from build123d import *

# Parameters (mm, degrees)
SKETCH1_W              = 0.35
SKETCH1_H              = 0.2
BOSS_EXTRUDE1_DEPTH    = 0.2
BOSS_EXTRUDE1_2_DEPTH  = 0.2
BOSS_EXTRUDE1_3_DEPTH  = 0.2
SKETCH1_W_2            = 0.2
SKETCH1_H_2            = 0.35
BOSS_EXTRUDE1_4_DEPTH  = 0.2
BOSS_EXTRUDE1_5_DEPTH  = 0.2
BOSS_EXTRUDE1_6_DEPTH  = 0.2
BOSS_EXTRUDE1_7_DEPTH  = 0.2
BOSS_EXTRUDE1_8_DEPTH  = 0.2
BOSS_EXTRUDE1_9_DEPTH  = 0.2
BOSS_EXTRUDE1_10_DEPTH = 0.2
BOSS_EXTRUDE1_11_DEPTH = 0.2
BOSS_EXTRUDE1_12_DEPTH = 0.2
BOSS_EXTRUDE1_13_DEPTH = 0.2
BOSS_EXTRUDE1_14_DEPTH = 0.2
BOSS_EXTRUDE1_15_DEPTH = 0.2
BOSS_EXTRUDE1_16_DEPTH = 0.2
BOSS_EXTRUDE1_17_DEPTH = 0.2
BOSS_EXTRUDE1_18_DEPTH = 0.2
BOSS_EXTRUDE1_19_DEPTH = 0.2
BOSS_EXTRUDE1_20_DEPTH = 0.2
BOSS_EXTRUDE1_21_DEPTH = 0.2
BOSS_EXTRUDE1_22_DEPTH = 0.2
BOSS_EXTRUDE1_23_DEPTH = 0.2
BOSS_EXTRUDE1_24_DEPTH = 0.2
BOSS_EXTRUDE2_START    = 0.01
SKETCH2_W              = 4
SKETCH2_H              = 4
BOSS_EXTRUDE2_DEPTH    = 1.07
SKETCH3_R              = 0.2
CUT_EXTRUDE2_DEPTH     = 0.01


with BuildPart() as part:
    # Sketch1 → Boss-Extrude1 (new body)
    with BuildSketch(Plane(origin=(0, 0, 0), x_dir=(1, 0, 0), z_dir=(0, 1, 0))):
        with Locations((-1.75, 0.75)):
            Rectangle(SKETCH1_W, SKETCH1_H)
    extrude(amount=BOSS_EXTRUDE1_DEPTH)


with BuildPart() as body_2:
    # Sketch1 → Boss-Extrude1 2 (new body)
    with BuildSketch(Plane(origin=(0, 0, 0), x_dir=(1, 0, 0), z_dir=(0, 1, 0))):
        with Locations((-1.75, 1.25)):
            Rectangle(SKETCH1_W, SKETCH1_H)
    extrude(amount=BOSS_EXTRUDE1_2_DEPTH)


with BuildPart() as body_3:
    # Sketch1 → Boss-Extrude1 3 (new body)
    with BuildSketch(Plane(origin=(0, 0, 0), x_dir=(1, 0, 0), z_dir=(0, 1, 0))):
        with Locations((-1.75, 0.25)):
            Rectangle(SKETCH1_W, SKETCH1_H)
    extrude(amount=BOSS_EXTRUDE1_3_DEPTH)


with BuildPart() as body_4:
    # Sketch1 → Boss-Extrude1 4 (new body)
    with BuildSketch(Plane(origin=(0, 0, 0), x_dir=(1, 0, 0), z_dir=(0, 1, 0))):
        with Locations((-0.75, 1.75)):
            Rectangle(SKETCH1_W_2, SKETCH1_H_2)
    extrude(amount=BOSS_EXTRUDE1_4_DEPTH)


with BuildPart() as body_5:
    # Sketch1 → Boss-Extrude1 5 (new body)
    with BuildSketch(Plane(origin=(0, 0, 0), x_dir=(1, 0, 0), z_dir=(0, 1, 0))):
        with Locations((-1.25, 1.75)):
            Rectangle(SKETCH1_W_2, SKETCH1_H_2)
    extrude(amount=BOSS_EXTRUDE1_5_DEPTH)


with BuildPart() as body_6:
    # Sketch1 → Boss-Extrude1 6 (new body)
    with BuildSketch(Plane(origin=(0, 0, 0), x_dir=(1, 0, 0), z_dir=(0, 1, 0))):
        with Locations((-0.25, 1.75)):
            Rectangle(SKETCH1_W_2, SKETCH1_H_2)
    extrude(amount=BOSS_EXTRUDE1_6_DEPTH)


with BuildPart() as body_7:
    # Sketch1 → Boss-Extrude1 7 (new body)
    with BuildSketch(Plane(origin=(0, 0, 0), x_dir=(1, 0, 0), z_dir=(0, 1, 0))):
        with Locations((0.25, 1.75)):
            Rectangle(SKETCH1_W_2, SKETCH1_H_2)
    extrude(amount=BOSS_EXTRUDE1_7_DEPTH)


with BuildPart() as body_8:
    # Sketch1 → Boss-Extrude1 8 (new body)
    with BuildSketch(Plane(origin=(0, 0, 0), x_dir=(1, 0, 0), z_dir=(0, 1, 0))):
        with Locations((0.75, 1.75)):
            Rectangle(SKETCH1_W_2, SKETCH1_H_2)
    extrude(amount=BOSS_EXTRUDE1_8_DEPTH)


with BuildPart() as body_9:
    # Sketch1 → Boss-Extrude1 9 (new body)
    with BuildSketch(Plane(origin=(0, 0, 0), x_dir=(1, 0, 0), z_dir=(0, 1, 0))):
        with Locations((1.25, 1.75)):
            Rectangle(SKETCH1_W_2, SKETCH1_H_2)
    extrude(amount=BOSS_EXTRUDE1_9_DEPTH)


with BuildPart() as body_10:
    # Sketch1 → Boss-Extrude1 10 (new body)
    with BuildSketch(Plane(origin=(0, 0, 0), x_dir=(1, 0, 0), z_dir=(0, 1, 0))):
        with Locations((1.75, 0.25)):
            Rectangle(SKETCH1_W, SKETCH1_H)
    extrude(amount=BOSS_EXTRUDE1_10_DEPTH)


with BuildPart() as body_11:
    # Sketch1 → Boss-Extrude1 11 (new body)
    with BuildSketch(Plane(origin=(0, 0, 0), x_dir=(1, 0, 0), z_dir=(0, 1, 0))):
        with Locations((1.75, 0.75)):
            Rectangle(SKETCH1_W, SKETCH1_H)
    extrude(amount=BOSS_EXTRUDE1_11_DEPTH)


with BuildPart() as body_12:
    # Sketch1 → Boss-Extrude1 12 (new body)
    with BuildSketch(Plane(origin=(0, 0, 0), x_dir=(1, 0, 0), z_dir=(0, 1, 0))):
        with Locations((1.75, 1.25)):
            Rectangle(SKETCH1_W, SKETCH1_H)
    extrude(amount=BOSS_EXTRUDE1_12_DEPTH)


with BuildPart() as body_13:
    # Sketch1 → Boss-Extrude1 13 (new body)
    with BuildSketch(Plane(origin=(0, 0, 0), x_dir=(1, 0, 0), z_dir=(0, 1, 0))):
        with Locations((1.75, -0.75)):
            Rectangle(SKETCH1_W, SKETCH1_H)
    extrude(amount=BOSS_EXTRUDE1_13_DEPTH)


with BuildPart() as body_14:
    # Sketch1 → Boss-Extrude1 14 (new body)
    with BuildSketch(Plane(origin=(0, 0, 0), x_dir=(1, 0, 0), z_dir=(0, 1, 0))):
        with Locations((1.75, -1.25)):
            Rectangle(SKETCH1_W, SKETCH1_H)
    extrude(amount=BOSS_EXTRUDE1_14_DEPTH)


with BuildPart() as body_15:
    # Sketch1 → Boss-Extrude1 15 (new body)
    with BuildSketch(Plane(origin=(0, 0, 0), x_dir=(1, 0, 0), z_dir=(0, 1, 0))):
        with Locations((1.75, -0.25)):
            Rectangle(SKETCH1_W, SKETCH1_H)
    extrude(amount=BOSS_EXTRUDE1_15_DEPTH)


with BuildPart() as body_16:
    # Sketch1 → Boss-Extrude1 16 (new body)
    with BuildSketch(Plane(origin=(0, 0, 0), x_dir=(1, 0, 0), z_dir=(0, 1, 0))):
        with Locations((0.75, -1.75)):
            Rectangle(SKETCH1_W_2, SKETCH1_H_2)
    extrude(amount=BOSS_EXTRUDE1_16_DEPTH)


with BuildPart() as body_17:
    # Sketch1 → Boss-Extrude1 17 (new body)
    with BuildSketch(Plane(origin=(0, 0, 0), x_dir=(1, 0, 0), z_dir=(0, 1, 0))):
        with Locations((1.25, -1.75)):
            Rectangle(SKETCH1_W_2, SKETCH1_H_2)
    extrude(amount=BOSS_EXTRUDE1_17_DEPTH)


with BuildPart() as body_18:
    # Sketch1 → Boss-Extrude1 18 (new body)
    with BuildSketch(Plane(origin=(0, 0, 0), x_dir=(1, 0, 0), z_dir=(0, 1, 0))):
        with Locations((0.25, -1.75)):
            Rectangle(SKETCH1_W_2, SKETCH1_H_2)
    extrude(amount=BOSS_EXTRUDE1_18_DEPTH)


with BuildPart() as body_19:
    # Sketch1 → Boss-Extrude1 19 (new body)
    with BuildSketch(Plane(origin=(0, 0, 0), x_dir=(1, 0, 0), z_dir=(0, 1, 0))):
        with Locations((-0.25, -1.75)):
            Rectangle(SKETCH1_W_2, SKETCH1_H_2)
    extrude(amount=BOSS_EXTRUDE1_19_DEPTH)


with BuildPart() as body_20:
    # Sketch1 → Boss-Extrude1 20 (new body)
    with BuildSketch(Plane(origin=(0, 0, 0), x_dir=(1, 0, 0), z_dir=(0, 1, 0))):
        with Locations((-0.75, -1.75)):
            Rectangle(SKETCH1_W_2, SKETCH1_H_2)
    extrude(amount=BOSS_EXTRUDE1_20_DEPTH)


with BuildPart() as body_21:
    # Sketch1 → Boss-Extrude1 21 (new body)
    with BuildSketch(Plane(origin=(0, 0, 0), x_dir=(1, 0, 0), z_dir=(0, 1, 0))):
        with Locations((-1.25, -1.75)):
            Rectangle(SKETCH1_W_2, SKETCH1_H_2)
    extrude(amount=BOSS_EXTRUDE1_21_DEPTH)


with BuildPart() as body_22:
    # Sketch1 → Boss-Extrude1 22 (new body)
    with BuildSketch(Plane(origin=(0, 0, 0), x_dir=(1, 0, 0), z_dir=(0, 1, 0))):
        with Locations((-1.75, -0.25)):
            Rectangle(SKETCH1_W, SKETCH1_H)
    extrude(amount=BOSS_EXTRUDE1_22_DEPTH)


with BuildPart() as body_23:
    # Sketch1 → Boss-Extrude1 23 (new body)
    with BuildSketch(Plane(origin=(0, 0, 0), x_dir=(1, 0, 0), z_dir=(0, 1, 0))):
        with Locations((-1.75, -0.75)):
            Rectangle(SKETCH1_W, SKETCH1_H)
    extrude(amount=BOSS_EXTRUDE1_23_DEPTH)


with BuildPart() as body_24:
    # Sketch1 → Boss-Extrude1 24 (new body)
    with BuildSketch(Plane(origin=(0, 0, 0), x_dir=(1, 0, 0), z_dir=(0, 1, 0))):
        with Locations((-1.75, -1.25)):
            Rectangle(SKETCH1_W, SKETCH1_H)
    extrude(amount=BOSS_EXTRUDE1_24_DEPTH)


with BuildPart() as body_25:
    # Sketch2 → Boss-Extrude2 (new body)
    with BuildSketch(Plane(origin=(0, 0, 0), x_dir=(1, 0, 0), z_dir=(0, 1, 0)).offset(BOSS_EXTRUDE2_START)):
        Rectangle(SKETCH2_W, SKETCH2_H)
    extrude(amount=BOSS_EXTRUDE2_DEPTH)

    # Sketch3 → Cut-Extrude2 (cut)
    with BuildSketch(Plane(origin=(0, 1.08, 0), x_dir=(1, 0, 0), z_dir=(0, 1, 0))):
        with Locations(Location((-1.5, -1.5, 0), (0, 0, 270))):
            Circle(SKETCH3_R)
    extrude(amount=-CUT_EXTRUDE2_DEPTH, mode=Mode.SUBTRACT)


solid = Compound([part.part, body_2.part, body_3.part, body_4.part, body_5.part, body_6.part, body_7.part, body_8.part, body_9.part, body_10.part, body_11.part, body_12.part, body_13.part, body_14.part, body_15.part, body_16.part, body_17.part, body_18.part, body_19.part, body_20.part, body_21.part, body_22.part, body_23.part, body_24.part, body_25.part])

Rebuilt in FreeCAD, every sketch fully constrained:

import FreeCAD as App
import Part
import Sketcher
from FreeCAD import Vector
Q = App.Units.Quantity


def add_polygon(sketch, points):
    """Adds a closed chain of lines whose ends are joined by coincident constraints."""
    first, n = sketch.GeometryCount, len(points)
    for a, b in zip(points, points[1:] + points[:1]):
        sketch.addGeometry(Part.LineSegment(App.Vector(*a, 0), App.Vector(*b, 0)), False)
    for i in range(n):
        sketch.addConstraint(Sketcher.Constraint("Coincident", first + i, 2, first + (i + 1) % n, 1))

doc = App.newDocument("Part")
params = doc.addObject("Spreadsheet::Sheet", "Params")
for row, (alias, value) in enumerate([
    ("sketch1_height", "0.2 mm"),
    ("sketch1_width", "0.35 mm"),
    ("pad1_length", "0.2 mm"),
    ("sketch2_height", "0.2 mm"),
    ("sketch2_width", "0.35 mm"),
    ("pad2_length", "0.2 mm"),
    ("sketch3_height", "0.2 mm"),
    ("sketch3_width", "0.35 mm"),
    ("pad3_length", "0.2 mm"),
    ("sketch4_width", "0.2 mm"),
    ("sketch4_height", "0.35 mm"),
    ("pad4_length", "0.2 mm"),
    ("sketch5_width", "0.2 mm"),
    ("sketch5_height", "0.35 mm"),
    ("pad5_length", "0.2 mm"),
    ("sketch6_width", "0.2 mm"),
    ("sketch6_height", "0.35 mm"),
    ("pad6_length", "0.2 mm"),
    ("sketch7_width", "0.2 mm"),
    ("sketch7_height", "0.35 mm"),
    ("pad7_length", "0.2 mm"),
    ("sketch8_width", "0.2 mm"),
    ("sketch8_height", "0.35 mm"),
    ("pad8_length", "0.2 mm"),
    ("sketch9_width", "0.2 mm"),
    ("sketch9_height", "0.35 mm"),
    ("pad9_length", "0.2 mm"),
    ("sketch10_height", "0.2 mm"),
    ("sketch10_width", "0.35 mm"),
    ("pad10_length", "0.2 mm"),
    ("sketch11_height", "0.2 mm"),
    ("sketch11_width", "0.35 mm"),
    ("pad11_length", "0.2 mm"),
    ("sketch12_height", "0.2 mm"),
    ("sketch12_width", "0.35 mm"),
    ("pad12_length", "0.2 mm"),
    ("sketch13_height", "0.2 mm"),
    ("sketch13_width", "0.35 mm"),
    ("pad13_length", "0.2 mm"),
    ("sketch14_height", "0.2 mm"),
    ("sketch14_width", "0.35 mm"),
    ("pad14_length", "0.2 mm"),
    ("sketch15_height", "0.2 mm"),
    ("sketch15_width", "0.35 mm"),
    ("pad15_length", "0.2 mm"),
    ("sketch16_width", "0.2 mm"),
    ("sketch16_height", "0.35 mm"),
    ("pad16_length", "0.2 mm"),
    ("sketch17_width", "0.2 mm"),
    ("sketch17_height", "0.35 mm"),
    ("pad17_length", "0.2 mm"),
    ("sketch18_width", "0.2 mm"),
    ("sketch18_height", "0.35 mm"),
    ("pad18_length", "0.2 mm"),
    ("sketch19_width", "0.2 mm"),
    ("sketch19_height", "0.35 mm"),
    ("pad19_length", "0.2 mm"),
    ("sketch20_width", "0.2 mm"),
    ("sketch20_height", "0.35 mm"),
    ("pad20_length", "0.2 mm"),
    ("sketch21_width", "0.2 mm"),
    ("sketch21_height", "0.35 mm"),
    ("pad21_length", "0.2 mm"),
    ("sketch22_height", "0.2 mm"),
    ("sketch22_width", "0.35 mm"),
    ("pad22_length", "0.2 mm"),
    ("sketch23_height", "0.2 mm"),
    ("sketch23_width", "0.35 mm"),
    ("pad23_length", "0.2 mm"),
    ("sketch24_height", "0.2 mm"),
    ("sketch24_width", "0.35 mm"),
    ("pad24_length", "0.2 mm"),
    ("sketch25_width", "4 mm"),
    ("pad25_length", "1.07 mm"),
    ("sketch26_diameter", "0.4 mm"),
    ("pocket1_length", "0.01 mm"),
], start=1):
    params.set(f"A{row}", alias)
    params.set(f"B{row}", "=" + value)
    params.setAlias(f"B{row}", alias)

body = doc.addObject("PartDesign::Body", "Body")

sketch1 = body.newObject("Sketcher::SketchObject", "Sketch")
sketch1.AttachmentSupport = (doc.getObject("XZ_Plane"), [""])
sketch1.MapMode = "FlatFace"
add_polygon(sketch1, [(-1.925, -0.85), (-1.925, -0.65), (-1.575, -0.65), (-1.575, -0.85)])
sketch1.addConstraint(Sketcher.Constraint("Vertical", 0))
sketch1.addConstraint(Sketcher.Constraint("Horizontal", 1))
sketch1.addConstraint(Sketcher.Constraint("Vertical", 2))
sketch1.addConstraint(Sketcher.Constraint("Horizontal", 3))
sketch1.addConstraint(Sketcher.Constraint("DistanceY", 0, 1, 0, 2, Q("0.2 mm")))
sketch1.addConstraint(Sketcher.Constraint("DistanceX", 1, 1, 1, 2, Q("0.35 mm")))
sketch1.addConstraint(Sketcher.Constraint("DistanceY", 0, 2, -1, 1, Q("0.65 mm")))
sketch1.addConstraint(Sketcher.Constraint("DistanceX", 0, 2, -1, 1, Q("1.925 mm")))
sketch1.setExpression("Constraints[8]", "Params.sketch1_height")
sketch1.setExpression("Constraints[9]", "Params.sketch1_width")
pad1 = body.newObject("PartDesign::Pad", "Pad")
pad1.Profile = sketch1
pad1.setExpression("Length", "Params.pad1_length")
pad1.Reversed = True
body2 = doc.addObject("PartDesign::Body", "Body001")

sketch2 = body2.newObject("Sketcher::SketchObject", "Sketch001")
sketch2.AttachmentSupport = (doc.getObject("XZ_Plane001"), [""])
sketch2.MapMode = "FlatFace"
add_polygon(sketch2, [(-1.925, -1.35), (-1.925, -1.15), (-1.575, -1.15), (-1.575, -1.35)])
sketch2.addConstraint(Sketcher.Constraint("Vertical", 0))
sketch2.addConstraint(Sketcher.Constraint("Horizontal", 1))
sketch2.addConstraint(Sketcher.Constraint("Vertical", 2))
sketch2.addConstraint(Sketcher.Constraint("Horizontal", 3))
sketch2.addConstraint(Sketcher.Constraint("DistanceY", 0, 1, 0, 2, Q("0.2 mm")))
sketch2.addConstraint(Sketcher.Constraint("DistanceX", 1, 1, 1, 2, Q("0.35 mm")))
sketch2.addConstraint(Sketcher.Constraint("DistanceY", 0, 2, -1, 1, Q("1.15 mm")))
sketch2.addConstraint(Sketcher.Constraint("DistanceX", 0, 2, -1, 1, Q("1.925 mm")))
sketch2.setExpression("Constraints[8]", "Params.sketch2_height")
sketch2.setExpression("Constraints[9]", "Params.sketch2_width")
pad2 = body2.newObject("PartDesign::Pad", "Pad001")
pad2.Profile = sketch2
pad2.setExpression("Length", "Params.pad2_length")
pad2.Reversed = True
body3 = doc.addObject("PartDesign::Body", "Body002")

sketch3 = body3.newObject("Sketcher::SketchObject", "Sketch002")
sketch3.AttachmentSupport = (doc.getObject("XZ_Plane002"), [""])
sketch3.MapMode = "FlatFace"
add_polygon(sketch3, [(-1.925, -0.35), (-1.925, -0.15), (-1.575, -0.15), (-1.575, -0.35)])
sketch3.addConstraint(Sketcher.Constraint("Vertical", 0))
sketch3.addConstraint(Sketcher.Constraint("Horizontal", 1))
sketch3.addConstraint(Sketcher.Constraint("Vertical", 2))
sketch3.addConstraint(Sketcher.Constraint("Horizontal", 3))
sketch3.addConstraint(Sketcher.Constraint("DistanceY", 0, 1, 0, 2, Q("0.2 mm")))
sketch3.addConstraint(Sketcher.Constraint("DistanceX", 1, 1, 1, 2, Q("0.35 mm")))
sketch3.addConstraint(Sketcher.Constraint("DistanceY", 0, 2, -1, 1, Q("0.15 mm")))
sketch3.addConstraint(Sketcher.Constraint("DistanceX", 0, 2, -1, 1, Q("1.925 mm")))
sketch3.setExpression("Constraints[8]", "Params.sketch3_height")
sketch3.setExpression("Constraints[9]", "Params.sketch3_width")
pad3 = body3.newObject("PartDesign::Pad", "Pad002")
pad3.Profile = sketch3
pad3.setExpression("Length", "Params.pad3_length")
pad3.Reversed = True
body4 = doc.addObject("PartDesign::Body", "Body003")

sketch4 = body4.newObject("Sketcher::SketchObject", "Sketch003")
sketch4.AttachmentSupport = (doc.getObject("XZ_Plane003"), [""])
sketch4.MapMode = "FlatFace"
add_polygon(sketch4, [(-0.85, -1.925), (-0.85, -1.575), (-0.65, -1.575), (-0.65, -1.925)])
sketch4.addConstraint(Sketcher.Constraint("Vertical", 0))
sketch4.addConstraint(Sketcher.Constraint("Horizontal", 1))
sketch4.addConstraint(Sketcher.Constraint("Vertical", 2))
sketch4.addConstraint(Sketcher.Constraint("Horizontal", 3))
sketch4.addConstraint(Sketcher.Constraint("DistanceX", 1, 1, 1, 2, Q("0.2 mm")))
sketch4.addConstraint(Sketcher.Constraint("DistanceY", 0, 1, 0, 2, Q("0.35 mm")))
sketch4.addConstraint(Sketcher.Constraint("DistanceX", 0, 2, -1, 1, Q("0.85 mm")))
sketch4.addConstraint(Sketcher.Constraint("DistanceY", 0, 2, -1, 1, Q("1.575 mm")))
sketch4.setExpression("Constraints[8]", "Params.sketch4_width")
sketch4.setExpression("Constraints[9]", "Params.sketch4_height")
pad4 = body4.newObject("PartDesign::Pad", "Pad003")
pad4.Profile = sketch4
pad4.setExpression("Length", "Params.pad4_length")
pad4.Reversed = True
body5 = doc.addObject("PartDesign::Body", "Body004")

sketch5 = body5.newObject("Sketcher::SketchObject", "Sketch004")
sketch5.AttachmentSupport = (doc.getObject("XZ_Plane004"), [""])
sketch5.MapMode = "FlatFace"
add_polygon(sketch5, [(-1.35, -1.925), (-1.35, -1.575), (-1.15, -1.575), (-1.15, -1.925)])
sketch5.addConstraint(Sketcher.Constraint("Vertical", 0))
sketch5.addConstraint(Sketcher.Constraint("Horizontal", 1))
sketch5.addConstraint(Sketcher.Constraint("Vertical", 2))
sketch5.addConstraint(Sketcher.Constraint("Horizontal", 3))
sketch5.addConstraint(Sketcher.Constraint("DistanceX", 1, 1, 1, 2, Q("0.2 mm")))
sketch5.addConstraint(Sketcher.Constraint("DistanceY", 0, 1, 0, 2, Q("0.35 mm")))
sketch5.addConstraint(Sketcher.Constraint("DistanceX", 0, 2, -1, 1, Q("1.35 mm")))
sketch5.addConstraint(Sketcher.Constraint("DistanceY", 0, 2, -1, 1, Q("1.575 mm")))
sketch5.setExpression("Constraints[8]", "Params.sketch5_width")
sketch5.setExpression("Constraints[9]", "Params.sketch5_height")
pad5 = body5.newObject("PartDesign::Pad", "Pad004")
pad5.Profile = sketch5
pad5.setExpression("Length", "Params.pad5_length")
pad5.Reversed = True
body6 = doc.addObject("PartDesign::Body", "Body005")

sketch6 = body6.newObject("Sketcher::SketchObject", "Sketch005")
sketch6.AttachmentSupport = (doc.getObject("XZ_Plane005"), [""])
sketch6.MapMode = "FlatFace"
add_polygon(sketch6, [(-0.35, -1.925), (-0.35, -1.575), (-0.15, -1.575), (-0.15, -1.925)])
sketch6.addConstraint(Sketcher.Constraint("Vertical", 0))
sketch6.addConstraint(Sketcher.Constraint("Horizontal", 1))
sketch6.addConstraint(Sketcher.Constraint("Vertical", 2))
sketch6.addConstraint(Sketcher.Constraint("Horizontal", 3))
sketch6.addConstraint(Sketcher.Constraint("DistanceX", 1, 1, 1, 2, Q("0.2 mm")))
sketch6.addConstraint(Sketcher.Constraint("DistanceY", 0, 1, 0, 2, Q("0.35 mm")))
sketch6.addConstraint(Sketcher.Constraint("DistanceX", 0, 2, -1, 1, Q("0.35 mm")))
sketch6.addConstraint(Sketcher.Constraint("DistanceY", 0, 2, -1, 1, Q("1.575 mm")))
sketch6.setExpression("Constraints[8]", "Params.sketch6_width")
sketch6.setExpression("Constraints[9]", "Params.sketch6_height")
pad6 = body6.newObject("PartDesign::Pad", "Pad005")
pad6.Profile = sketch6
pad6.setExpression("Length", "Params.pad6_length")
pad6.Reversed = True
body7 = doc.addObject("PartDesign::Body", "Body006")

sketch7 = body7.newObject("Sketcher::SketchObject", "Sketch006")
sketch7.AttachmentSupport = (doc.getObject("XZ_Plane006"), [""])
sketch7.MapMode = "FlatFace"
add_polygon(sketch7, [(0.15, -1.925), (0.15, -1.575), (0.35, -1.575), (0.35, -1.925)])
sketch7.addConstraint(Sketcher.Constraint("Vertical", 0))
sketch7.addConstraint(Sketcher.Constraint("Horizontal", 1))
sketch7.addConstraint(Sketcher.Constraint("Vertical", 2))
sketch7.addConstraint(Sketcher.Constraint("Horizontal", 3))
sketch7.addConstraint(Sketcher.Constraint("DistanceX", 1, 1, 1, 2, Q("0.2 mm")))
sketch7.addConstraint(Sketcher.Constraint("DistanceY", 0, 1, 0, 2, Q("0.35 mm")))
sketch7.addConstraint(Sketcher.Constraint("DistanceX", -1, 1, 0, 2, Q("0.15 mm")))
sketch7.addConstraint(Sketcher.Constraint("DistanceY", 0, 2, -1, 1, Q("1.575 mm")))
sketch7.setExpression("Constraints[8]", "Params.sketch7_width")
sketch7.setExpression("Constraints[9]", "Params.sketch7_height")
pad7 = body7.newObject("PartDesign::Pad", "Pad006")
pad7.Profile = sketch7
pad7.setExpression("Length", "Params.pad7_length")
pad7.Reversed = True
body8 = doc.addObject("PartDesign::Body", "Body007")

sketch8 = body8.newObject("Sketcher::SketchObject", "Sketch007")
sketch8.AttachmentSupport = (doc.getObject("XZ_Plane007"), [""])
sketch8.MapMode = "FlatFace"
add_polygon(sketch8, [(0.65, -1.925), (0.65, -1.575), (0.85, -1.575), (0.85, -1.925)])
sketch8.addConstraint(Sketcher.Constraint("Vertical", 0))
sketch8.addConstraint(Sketcher.Constraint("Horizontal", 1))
sketch8.addConstraint(Sketcher.Constraint("Vertical", 2))
sketch8.addConstraint(Sketcher.Constraint("Horizontal", 3))
sketch8.addConstraint(Sketcher.Constraint("DistanceX", 1, 1, 1, 2, Q("0.2 mm")))
sketch8.addConstraint(Sketcher.Constraint("DistanceY", 0, 1, 0, 2, Q("0.35 mm")))
sketch8.addConstraint(Sketcher.Constraint("DistanceX", -1, 1, 0, 2, Q("0.65 mm")))
sketch8.addConstraint(Sketcher.Constraint("DistanceY", 0, 2, -1, 1, Q("1.575 mm")))
sketch8.setExpression("Constraints[8]", "Params.sketch8_width")
sketch8.setExpression("Constraints[9]", "Params.sketch8_height")
pad8 = body8.newObject("PartDesign::Pad", "Pad007")
pad8.Profile = sketch8
pad8.setExpression("Length", "Params.pad8_length")
pad8.Reversed = True
body9 = doc.addObject("PartDesign::Body", "Body008")

sketch9 = body9.newObject("Sketcher::SketchObject", "Sketch008")
sketch9.AttachmentSupport = (doc.getObject("XZ_Plane008"), [""])
sketch9.MapMode = "FlatFace"
add_polygon(sketch9, [(1.15, -1.925), (1.15, -1.575), (1.35, -1.575), (1.35, -1.925)])
sketch9.addConstraint(Sketcher.Constraint("Vertical", 0))
sketch9.addConstraint(Sketcher.Constraint("Horizontal", 1))
sketch9.addConstraint(Sketcher.Constraint("Vertical", 2))
sketch9.addConstraint(Sketcher.Constraint("Horizontal", 3))
sketch9.addConstraint(Sketcher.Constraint("DistanceX", 1, 1, 1, 2, Q("0.2 mm")))
sketch9.addConstraint(Sketcher.Constraint("DistanceY", 0, 1, 0, 2, Q("0.35 mm")))
sketch9.addConstraint(Sketcher.Constraint("DistanceX", -1, 1, 0, 2, Q("1.15 mm")))
sketch9.addConstraint(Sketcher.Constraint("DistanceY", 0, 2, -1, 1, Q("1.575 mm")))
sketch9.setExpression("Constraints[8]", "Params.sketch9_width")
sketch9.setExpression("Constraints[9]", "Params.sketch9_height")
pad9 = body9.newObject("PartDesign::Pad", "Pad008")
pad9.Profile = sketch9
pad9.setExpression("Length", "Params.pad9_length")
pad9.Reversed = True
body10 = doc.addObject("PartDesign::Body", "Body009")

sketch10 = body10.newObject("Sketcher::SketchObject", "Sketch009")
sketch10.AttachmentSupport = (doc.getObject("XZ_Plane009"), [""])
sketch10.MapMode = "FlatFace"
add_polygon(sketch10, [(1.575, -0.35), (1.575, -0.15), (1.925, -0.15), (1.925, -0.35)])
sketch10.addConstraint(Sketcher.Constraint("Vertical", 0))
sketch10.addConstraint(Sketcher.Constraint("Horizontal", 1))
sketch10.addConstraint(Sketcher.Constraint("Vertical", 2))
sketch10.addConstraint(Sketcher.Constraint("Horizontal", 3))
sketch10.addConstraint(Sketcher.Constraint("DistanceY", 0, 1, 0, 2, Q("0.2 mm")))
sketch10.addConstraint(Sketcher.Constraint("DistanceX", 1, 1, 1, 2, Q("0.35 mm")))
sketch10.addConstraint(Sketcher.Constraint("DistanceY", 0, 2, -1, 1, Q("0.15 mm")))
sketch10.addConstraint(Sketcher.Constraint("DistanceX", -1, 1, 0, 2, Q("1.575 mm")))
sketch10.setExpression("Constraints[8]", "Params.sketch10_height")
sketch10.setExpression("Constraints[9]", "Params.sketch10_width")
pad10 = body10.newObject("PartDesign::Pad", "Pad009")
pad10.Profile = sketch10
pad10.setExpression("Length", "Params.pad10_length")
pad10.Reversed = True
body11 = doc.addObject("PartDesign::Body", "Body010")

sketch11 = body11.newObject("Sketcher::SketchObject", "Sketch010")
sketch11.AttachmentSupport = (doc.getObject("XZ_Plane010"), [""])
sketch11.MapMode = "FlatFace"
add_polygon(sketch11, [(1.575, -0.85), (1.575, -0.65), (1.925, -0.65), (1.925, -0.85)])
sketch11.addConstraint(Sketcher.Constraint("Vertical", 0))
sketch11.addConstraint(Sketcher.Constraint("Horizontal", 1))
sketch11.addConstraint(Sketcher.Constraint("Vertical", 2))
sketch11.addConstraint(Sketcher.Constraint("Horizontal", 3))
sketch11.addConstraint(Sketcher.Constraint("DistanceY", 0, 1, 0, 2, Q("0.2 mm")))
sketch11.addConstraint(Sketcher.Constraint("DistanceX", 1, 1, 1, 2, Q("0.35 mm")))
sketch11.addConstraint(Sketcher.Constraint("DistanceY", 0, 2, -1, 1, Q("0.65 mm")))
sketch11.addConstraint(Sketcher.Constraint("DistanceX", -1, 1, 0, 2, Q("1.575 mm")))
sketch11.setExpression("Constraints[8]", "Params.sketch11_height")
sketch11.setExpression("Constraints[9]", "Params.sketch11_width")
pad11 = body11.newObject("PartDesign::Pad", "Pad010")
pad11.Profile = sketch11
pad11.setExpression("Length", "Params.pad11_length")
pad11.Reversed = True
body12 = doc.addObject("PartDesign::Body", "Body011")

sketch12 = body12.newObject("Sketcher::SketchObject", "Sketch011")
sketch12.AttachmentSupport = (doc.getObject("XZ_Plane011"), [""])
sketch12.MapMode = "FlatFace"
add_polygon(sketch12, [(1.575, -1.35), (1.575, -1.15), (1.925, -1.15), (1.925, -1.35)])
sketch12.addConstraint(Sketcher.Constraint("Vertical", 0))
sketch12.addConstraint(Sketcher.Constraint("Horizontal", 1))
sketch12.addConstraint(Sketcher.Constraint("Vertical", 2))
sketch12.addConstraint(Sketcher.Constraint("Horizontal", 3))
sketch12.addConstraint(Sketcher.Constraint("DistanceY", 0, 1, 0, 2, Q("0.2 mm")))
sketch12.addConstraint(Sketcher.Constraint("DistanceX", 1, 1, 1, 2, Q("0.35 mm")))
sketch12.addConstraint(Sketcher.Constraint("DistanceY", 0, 2, -1, 1, Q("1.15 mm")))
sketch12.addConstraint(Sketcher.Constraint("DistanceX", -1, 1, 0, 2, Q("1.575 mm")))
sketch12.setExpression("Constraints[8]", "Params.sketch12_height")
sketch12.setExpression("Constraints[9]", "Params.sketch12_width")
pad12 = body12.newObject("PartDesign::Pad", "Pad011")
pad12.Profile = sketch12
pad12.setExpression("Length", "Params.pad12_length")
pad12.Reversed = True
body13 = doc.addObject("PartDesign::Body", "Body012")

sketch13 = body13.newObject("Sketcher::SketchObject", "Sketch012")
sketch13.AttachmentSupport = (doc.getObject("XZ_Plane012"), [""])
sketch13.MapMode = "FlatFace"
add_polygon(sketch13, [(1.575, 0.65), (1.575, 0.85), (1.925, 0.85), (1.925, 0.65)])
sketch13.addConstraint(Sketcher.Constraint("Vertical", 0))
sketch13.addConstraint(Sketcher.Constraint("Horizontal", 1))
sketch13.addConstraint(Sketcher.Constraint("Vertical", 2))
sketch13.addConstraint(Sketcher.Constraint("Horizontal", 3))
sketch13.addConstraint(Sketcher.Constraint("DistanceY", 0, 1, 0, 2, Q("0.2 mm")))
sketch13.addConstraint(Sketcher.Constraint("DistanceX", 1, 1, 1, 2, Q("0.35 mm")))
sketch13.addConstraint(Sketcher.Constraint("DistanceY", -1, 1, 0, 2, Q("0.85 mm")))
sketch13.addConstraint(Sketcher.Constraint("DistanceX", -1, 1, 0, 2, Q("1.575 mm")))
sketch13.setExpression("Constraints[8]", "Params.sketch13_height")
sketch13.setExpression("Constraints[9]", "Params.sketch13_width")
pad13 = body13.newObject("PartDesign::Pad", "Pad012")
pad13.Profile = sketch13
pad13.setExpression("Length", "Params.pad13_length")
pad13.Reversed = True
body14 = doc.addObject("PartDesign::Body", "Body013")

sketch14 = body14.newObject("Sketcher::SketchObject", "Sketch013")
sketch14.AttachmentSupport = (doc.getObject("XZ_Plane013"), [""])
sketch14.MapMode = "FlatFace"
add_polygon(sketch14, [(1.575, 1.15), (1.575, 1.35), (1.925, 1.35), (1.925, 1.15)])
sketch14.addConstraint(Sketcher.Constraint("Vertical", 0))
sketch14.addConstraint(Sketcher.Constraint("Horizontal", 1))
sketch14.addConstraint(Sketcher.Constraint("Vertical", 2))
sketch14.addConstraint(Sketcher.Constraint("Horizontal", 3))
sketch14.addConstraint(Sketcher.Constraint("DistanceY", 0, 1, 0, 2, Q("0.2 mm")))
sketch14.addConstraint(Sketcher.Constraint("DistanceX", 1, 1, 1, 2, Q("0.35 mm")))
sketch14.addConstraint(Sketcher.Constraint("DistanceY", -1, 1, 0, 2, Q("1.35 mm")))
sketch14.addConstraint(Sketcher.Constraint("DistanceX", -1, 1, 0, 2, Q("1.575 mm")))
sketch14.setExpression("Constraints[8]", "Params.sketch14_height")
sketch14.setExpression("Constraints[9]", "Params.sketch14_width")
pad14 = body14.newObject("PartDesign::Pad", "Pad013")
pad14.Profile = sketch14
pad14.setExpression("Length", "Params.pad14_length")
pad14.Reversed = True
body15 = doc.addObject("PartDesign::Body", "Body014")

sketch15 = body15.newObject("Sketcher::SketchObject", "Sketch014")
sketch15.AttachmentSupport = (doc.getObject("XZ_Plane014"), [""])
sketch15.MapMode = "FlatFace"
add_polygon(sketch15, [(1.575, 0.15), (1.575, 0.35), (1.925, 0.35), (1.925, 0.15)])
sketch15.addConstraint(Sketcher.Constraint("Vertical", 0))
sketch15.addConstraint(Sketcher.Constraint("Horizontal", 1))
sketch15.addConstraint(Sketcher.Constraint("Vertical", 2))
sketch15.addConstraint(Sketcher.Constraint("Horizontal", 3))
sketch15.addConstraint(Sketcher.Constraint("DistanceY", 0, 1, 0, 2, Q("0.2 mm")))
sketch15.addConstraint(Sketcher.Constraint("DistanceX", 1, 1, 1, 2, Q("0.35 mm")))
sketch15.addConstraint(Sketcher.Constraint("DistanceY", -1, 1, 0, 2, Q("0.35 mm")))
sketch15.addConstraint(Sketcher.Constraint("DistanceX", -1, 1, 0, 2, Q("1.575 mm")))
sketch15.setExpression("Constraints[8]", "Params.sketch15_height")
sketch15.setExpression("Constraints[9]", "Params.sketch15_width")
pad15 = body15.newObject("PartDesign::Pad", "Pad014")
pad15.Profile = sketch15
pad15.setExpression("Length", "Params.pad15_length")
pad15.Reversed = True
body16 = doc.addObject("PartDesign::Body", "Body015")

sketch16 = body16.newObject("Sketcher::SketchObject", "Sketch015")
sketch16.AttachmentSupport = (doc.getObject("XZ_Plane015"), [""])
sketch16.MapMode = "FlatFace"
add_polygon(sketch16, [(0.65, 1.575), (0.65, 1.925), (0.85, 1.925), (0.85, 1.575)])
sketch16.addConstraint(Sketcher.Constraint("Vertical", 0))
sketch16.addConstraint(Sketcher.Constraint("Horizontal", 1))
sketch16.addConstraint(Sketcher.Constraint("Vertical", 2))
sketch16.addConstraint(Sketcher.Constraint("Horizontal", 3))
sketch16.addConstraint(Sketcher.Constraint("DistanceX", 1, 1, 1, 2, Q("0.2 mm")))
sketch16.addConstraint(Sketcher.Constraint("DistanceY", 0, 1, 0, 2, Q("0.35 mm")))
sketch16.addConstraint(Sketcher.Constraint("DistanceX", -1, 1, 0, 2, Q("0.65 mm")))
sketch16.addConstraint(Sketcher.Constraint("DistanceY", -1, 1, 0, 2, Q("1.925 mm")))
sketch16.setExpression("Constraints[8]", "Params.sketch16_width")
sketch16.setExpression("Constraints[9]", "Params.sketch16_height")
pad16 = body16.newObject("PartDesign::Pad", "Pad015")
pad16.Profile = sketch16
pad16.setExpression("Length", "Params.pad16_length")
pad16.Reversed = True
body17 = doc.addObject("PartDesign::Body", "Body016")

sketch17 = body17.newObject("Sketcher::SketchObject", "Sketch016")
sketch17.AttachmentSupport = (doc.getObject("XZ_Plane016"), [""])
sketch17.MapMode = "FlatFace"
add_polygon(sketch17, [(1.15, 1.575), (1.15, 1.925), (1.35, 1.925), (1.35, 1.575)])
sketch17.addConstraint(Sketcher.Constraint("Vertical", 0))
sketch17.addConstraint(Sketcher.Constraint("Horizontal", 1))
sketch17.addConstraint(Sketcher.Constraint("Vertical", 2))
sketch17.addConstraint(Sketcher.Constraint("Horizontal", 3))
sketch17.addConstraint(Sketcher.Constraint("DistanceX", 1, 1, 1, 2, Q("0.2 mm")))
sketch17.addConstraint(Sketcher.Constraint("DistanceY", 0, 1, 0, 2, Q("0.35 mm")))
sketch17.addConstraint(Sketcher.Constraint("DistanceX", -1, 1, 0, 2, Q("1.15 mm")))
sketch17.addConstraint(Sketcher.Constraint("DistanceY", -1, 1, 0, 2, Q("1.925 mm")))
sketch17.setExpression("Constraints[8]", "Params.sketch17_width")
sketch17.setExpression("Constraints[9]", "Params.sketch17_height")
pad17 = body17.newObject("PartDesign::Pad", "Pad016")
pad17.Profile = sketch17
pad17.setExpression("Length", "Params.pad17_length")
pad17.Reversed = True
body18 = doc.addObject("PartDesign::Body", "Body017")

sketch18 = body18.newObject("Sketcher::SketchObject", "Sketch017")
sketch18.AttachmentSupport = (doc.getObject("XZ_Plane017"), [""])
sketch18.MapMode = "FlatFace"
add_polygon(sketch18, [(0.15, 1.575), (0.15, 1.925), (0.35, 1.925), (0.35, 1.575)])
sketch18.addConstraint(Sketcher.Constraint("Vertical", 0))
sketch18.addConstraint(Sketcher.Constraint("Horizontal", 1))
sketch18.addConstraint(Sketcher.Constraint("Vertical", 2))
sketch18.addConstraint(Sketcher.Constraint("Horizontal", 3))
sketch18.addConstraint(Sketcher.Constraint("DistanceX", 1, 1, 1, 2, Q("0.2 mm")))
sketch18.addConstraint(Sketcher.Constraint("DistanceY", 0, 1, 0, 2, Q("0.35 mm")))
sketch18.addConstraint(Sketcher.Constraint("DistanceX", -1, 1, 0, 2, Q("0.15 mm")))
sketch18.addConstraint(Sketcher.Constraint("DistanceY", -1, 1, 0, 2, Q("1.925 mm")))
sketch18.setExpression("Constraints[8]", "Params.sketch18_width")
sketch18.setExpression("Constraints[9]", "Params.sketch18_height")
pad18 = body18.newObject("PartDesign::Pad", "Pad017")
pad18.Profile = sketch18
pad18.setExpression("Length", "Params.pad18_length")
pad18.Reversed = True
body19 = doc.addObject("PartDesign::Body", "Body018")

sketch19 = body19.newObject("Sketcher::SketchObject", "Sketch018")
sketch19.AttachmentSupport = (doc.getObject("XZ_Plane018"), [""])
sketch19.MapMode = "FlatFace"
add_polygon(sketch19, [(-0.35, 1.575), (-0.35, 1.925), (-0.15, 1.925), (-0.15, 1.575)])
sketch19.addConstraint(Sketcher.Constraint("Vertical", 0))
sketch19.addConstraint(Sketcher.Constraint("Horizontal", 1))
sketch19.addConstraint(Sketcher.Constraint("Vertical", 2))
sketch19.addConstraint(Sketcher.Constraint("Horizontal", 3))
sketch19.addConstraint(Sketcher.Constraint("DistanceX", 1, 1, 1, 2, Q("0.2 mm")))
sketch19.addConstraint(Sketcher.Constraint("DistanceY", 0, 1, 0, 2, Q("0.35 mm")))
sketch19.addConstraint(Sketcher.Constraint("DistanceX", 0, 2, -1, 1, Q("0.35 mm")))
sketch19.addConstraint(Sketcher.Constraint("DistanceY", -1, 1, 0, 2, Q("1.925 mm")))
sketch19.setExpression("Constraints[8]", "Params.sketch19_width")
sketch19.setExpression("Constraints[9]", "Params.sketch19_height")
pad19 = body19.newObject("PartDesign::Pad", "Pad018")
pad19.Profile = sketch19
pad19.setExpression("Length", "Params.pad19_length")
pad19.Reversed = True
body20 = doc.addObject("PartDesign::Body", "Body019")

sketch20 = body20.newObject("Sketcher::SketchObject", "Sketch019")
sketch20.AttachmentSupport = (doc.getObject("XZ_Plane019"), [""])
sketch20.MapMode = "FlatFace"
add_polygon(sketch20, [(-0.85, 1.575), (-0.85, 1.925), (-0.65, 1.925), (-0.65, 1.575)])
sketch20.addConstraint(Sketcher.Constraint("Vertical", 0))
sketch20.addConstraint(Sketcher.Constraint("Horizontal", 1))
sketch20.addConstraint(Sketcher.Constraint("Vertical", 2))
sketch20.addConstraint(Sketcher.Constraint("Horizontal", 3))
sketch20.addConstraint(Sketcher.Constraint("DistanceX", 1, 1, 1, 2, Q("0.2 mm")))
sketch20.addConstraint(Sketcher.Constraint("DistanceY", 0, 1, 0, 2, Q("0.35 mm")))
sketch20.addConstraint(Sketcher.Constraint("DistanceX", 0, 2, -1, 1, Q("0.85 mm")))
sketch20.addConstraint(Sketcher.Constraint("DistanceY", -1, 1, 0, 2, Q("1.925 mm")))
sketch20.setExpression("Constraints[8]", "Params.sketch20_width")
sketch20.setExpression("Constraints[9]", "Params.sketch20_height")
pad20 = body20.newObject("PartDesign::Pad", "Pad019")
pad20.Profile = sketch20
pad20.setExpression("Length", "Params.pad20_length")
pad20.Reversed = True
body21 = doc.addObject("PartDesign::Body", "Body020")

sketch21 = body21.newObject("Sketcher::SketchObject", "Sketch020")
sketch21.AttachmentSupport = (doc.getObject("XZ_Plane020"), [""])
sketch21.MapMode = "FlatFace"
add_polygon(sketch21, [(-1.35, 1.575), (-1.35, 1.925), (-1.15, 1.925), (-1.15, 1.575)])
sketch21.addConstraint(Sketcher.Constraint("Vertical", 0))
sketch21.addConstraint(Sketcher.Constraint("Horizontal", 1))
sketch21.addConstraint(Sketcher.Constraint("Vertical", 2))
sketch21.addConstraint(Sketcher.Constraint("Horizontal", 3))
sketch21.addConstraint(Sketcher.Constraint("DistanceX", 1, 1, 1, 2, Q("0.2 mm")))
sketch21.addConstraint(Sketcher.Constraint("DistanceY", 0, 1, 0, 2, Q("0.35 mm")))
sketch21.addConstraint(Sketcher.Constraint("DistanceX", 0, 2, -1, 1, Q("1.35 mm")))
sketch21.addConstraint(Sketcher.Constraint("DistanceY", -1, 1, 0, 2, Q("1.925 mm")))
sketch21.setExpression("Constraints[8]", "Params.sketch21_width")
sketch21.setExpression("Constraints[9]", "Params.sketch21_height")
pad21 = body21.newObject("PartDesign::Pad", "Pad020")
pad21.Profile = sketch21
pad21.setExpression("Length", "Params.pad21_length")
pad21.Reversed = True
body22 = doc.addObject("PartDesign::Body", "Body021")

sketch22 = body22.newObject("Sketcher::SketchObject", "Sketch021")
sketch22.AttachmentSupport = (doc.getObject("XZ_Plane021"), [""])
sketch22.MapMode = "FlatFace"
add_polygon(sketch22, [(-1.925, 0.15), (-1.925, 0.35), (-1.575, 0.35), (-1.575, 0.15)])
sketch22.addConstraint(Sketcher.Constraint("Vertical", 0))
sketch22.addConstraint(Sketcher.Constraint("Horizontal", 1))
sketch22.addConstraint(Sketcher.Constraint("Vertical", 2))
sketch22.addConstraint(Sketcher.Constraint("Horizontal", 3))
sketch22.addConstraint(Sketcher.Constraint("DistanceY", 0, 1, 0, 2, Q("0.2 mm")))
sketch22.addConstraint(Sketcher.Constraint("DistanceX", 1, 1, 1, 2, Q("0.35 mm")))
sketch22.addConstraint(Sketcher.Constraint("DistanceY", -1, 1, 0, 2, Q("0.35 mm")))
sketch22.addConstraint(Sketcher.Constraint("DistanceX", 0, 2, -1, 1, Q("1.925 mm")))
sketch22.setExpression("Constraints[8]", "Params.sketch22_height")
sketch22.setExpression("Constraints[9]", "Params.sketch22_width")
pad22 = body22.newObject("PartDesign::Pad", "Pad021")
pad22.Profile = sketch22
pad22.setExpression("Length", "Params.pad22_length")
pad22.Reversed = True
body23 = doc.addObject("PartDesign::Body", "Body022")

sketch23 = body23.newObject("Sketcher::SketchObject", "Sketch022")
sketch23.AttachmentSupport = (doc.getObject("XZ_Plane022"), [""])
sketch23.MapMode = "FlatFace"
add_polygon(sketch23, [(-1.925, 0.65), (-1.925, 0.85), (-1.575, 0.85), (-1.575, 0.65)])
sketch23.addConstraint(Sketcher.Constraint("Vertical", 0))
sketch23.addConstraint(Sketcher.Constraint("Horizontal", 1))
sketch23.addConstraint(Sketcher.Constraint("Vertical", 2))
sketch23.addConstraint(Sketcher.Constraint("Horizontal", 3))
sketch23.addConstraint(Sketcher.Constraint("DistanceY", 0, 1, 0, 2, Q("0.2 mm")))
sketch23.addConstraint(Sketcher.Constraint("DistanceX", 1, 1, 1, 2, Q("0.35 mm")))
sketch23.addConstraint(Sketcher.Constraint("DistanceY", -1, 1, 0, 2, Q("0.85 mm")))
sketch23.addConstraint(Sketcher.Constraint("DistanceX", 0, 2, -1, 1, Q("1.925 mm")))
sketch23.setExpression("Constraints[8]", "Params.sketch23_height")
sketch23.setExpression("Constraints[9]", "Params.sketch23_width")
pad23 = body23.newObject("PartDesign::Pad", "Pad022")
pad23.Profile = sketch23
pad23.setExpression("Length", "Params.pad23_length")
pad23.Reversed = True
body24 = doc.addObject("PartDesign::Body", "Body023")

sketch24 = body24.newObject("Sketcher::SketchObject", "Sketch023")
sketch24.AttachmentSupport = (doc.getObject("XZ_Plane023"), [""])
sketch24.MapMode = "FlatFace"
add_polygon(sketch24, [(-1.925, 1.15), (-1.925, 1.35), (-1.575, 1.35), (-1.575, 1.15)])
sketch24.addConstraint(Sketcher.Constraint("Vertical", 0))
sketch24.addConstraint(Sketcher.Constraint("Horizontal", 1))
sketch24.addConstraint(Sketcher.Constraint("Vertical", 2))
sketch24.addConstraint(Sketcher.Constraint("Horizontal", 3))
sketch24.addConstraint(Sketcher.Constraint("DistanceY", 0, 1, 0, 2, Q("0.2 mm")))
sketch24.addConstraint(Sketcher.Constraint("DistanceX", 1, 1, 1, 2, Q("0.35 mm")))
sketch24.addConstraint(Sketcher.Constraint("DistanceY", -1, 1, 0, 2, Q("1.35 mm")))
sketch24.addConstraint(Sketcher.Constraint("DistanceX", 0, 2, -1, 1, Q("1.925 mm")))
sketch24.setExpression("Constraints[8]", "Params.sketch24_height")
sketch24.setExpression("Constraints[9]", "Params.sketch24_width")
pad24 = body24.newObject("PartDesign::Pad", "Pad023")
pad24.Profile = sketch24
pad24.setExpression("Length", "Params.pad24_length")
pad24.Reversed = True
body25 = doc.addObject("PartDesign::Body", "Body024")

sketch25 = body25.newObject("Sketcher::SketchObject", "Sketch024")
sketch25.AttachmentSupport = (doc.getObject("XZ_Plane024"), [""])
sketch25.MapMode = "FlatFace"
sketch25.AttachmentOffset = App.Placement(Vector(0, 0, -0.01), App.Rotation())
add_polygon(sketch25, [(-2, -2), (-2, 2), (2, 2), (2, -2)])
sketch25.addConstraint(Sketcher.Constraint("Vertical", 0))
sketch25.addConstraint(Sketcher.Constraint("Horizontal", 1))
sketch25.addConstraint(Sketcher.Constraint("Vertical", 2))
sketch25.addConstraint(Sketcher.Constraint("Horizontal", 3))
sketch25.addConstraint(Sketcher.Constraint("Symmetric", 0, 2, 2, 2, -1, 1))
sketch25.addConstraint(Sketcher.Constraint("Equal", 3, 0))
sketch25.addConstraint(Sketcher.Constraint("DistanceX", 1, 1, 1, 2, Q("4 mm")))
sketch25.setExpression("Constraints[10]", "Params.sketch25_width")
pad25 = body25.newObject("PartDesign::Pad", "Pad024")
pad25.Profile = sketch25
pad25.setExpression("Length", "Params.pad25_length")
pad25.Reversed = True

sketch26 = body25.newObject("Sketcher::SketchObject", "Sketch025")
sketch26.AttachmentSupport = (doc.getObject("XZ_Plane024"), [""])
sketch26.MapMode = "FlatFace"
sketch26.AttachmentOffset = App.Placement(Vector(0, 0, -1.08), App.Rotation())
sketch26.addGeometry(Part.Circle(Vector(-1.5, 1.5, 0), Vector(0, 0, 1), 0.2), False)
sketch26.addConstraint(Sketcher.Constraint("Diameter", 0, Q("0.4 mm")))
sketch26.addConstraint(Sketcher.Constraint("DistanceX", 0, 3, -1, 1, Q("1.5 mm")))
sketch26.addConstraint(Sketcher.Constraint("DistanceY", -1, 1, 0, 3, Q("1.5 mm")))
sketch26.setExpression("Constraints[0]", "Params.sketch26_diameter")
pocket1 = body25.newObject("PartDesign::Pocket", "Pocket")
pocket1.Profile = sketch26
pocket1.setExpression("Length", "Params.pocket1_length")
pocket1.Reversed = True

doc.recompute()
